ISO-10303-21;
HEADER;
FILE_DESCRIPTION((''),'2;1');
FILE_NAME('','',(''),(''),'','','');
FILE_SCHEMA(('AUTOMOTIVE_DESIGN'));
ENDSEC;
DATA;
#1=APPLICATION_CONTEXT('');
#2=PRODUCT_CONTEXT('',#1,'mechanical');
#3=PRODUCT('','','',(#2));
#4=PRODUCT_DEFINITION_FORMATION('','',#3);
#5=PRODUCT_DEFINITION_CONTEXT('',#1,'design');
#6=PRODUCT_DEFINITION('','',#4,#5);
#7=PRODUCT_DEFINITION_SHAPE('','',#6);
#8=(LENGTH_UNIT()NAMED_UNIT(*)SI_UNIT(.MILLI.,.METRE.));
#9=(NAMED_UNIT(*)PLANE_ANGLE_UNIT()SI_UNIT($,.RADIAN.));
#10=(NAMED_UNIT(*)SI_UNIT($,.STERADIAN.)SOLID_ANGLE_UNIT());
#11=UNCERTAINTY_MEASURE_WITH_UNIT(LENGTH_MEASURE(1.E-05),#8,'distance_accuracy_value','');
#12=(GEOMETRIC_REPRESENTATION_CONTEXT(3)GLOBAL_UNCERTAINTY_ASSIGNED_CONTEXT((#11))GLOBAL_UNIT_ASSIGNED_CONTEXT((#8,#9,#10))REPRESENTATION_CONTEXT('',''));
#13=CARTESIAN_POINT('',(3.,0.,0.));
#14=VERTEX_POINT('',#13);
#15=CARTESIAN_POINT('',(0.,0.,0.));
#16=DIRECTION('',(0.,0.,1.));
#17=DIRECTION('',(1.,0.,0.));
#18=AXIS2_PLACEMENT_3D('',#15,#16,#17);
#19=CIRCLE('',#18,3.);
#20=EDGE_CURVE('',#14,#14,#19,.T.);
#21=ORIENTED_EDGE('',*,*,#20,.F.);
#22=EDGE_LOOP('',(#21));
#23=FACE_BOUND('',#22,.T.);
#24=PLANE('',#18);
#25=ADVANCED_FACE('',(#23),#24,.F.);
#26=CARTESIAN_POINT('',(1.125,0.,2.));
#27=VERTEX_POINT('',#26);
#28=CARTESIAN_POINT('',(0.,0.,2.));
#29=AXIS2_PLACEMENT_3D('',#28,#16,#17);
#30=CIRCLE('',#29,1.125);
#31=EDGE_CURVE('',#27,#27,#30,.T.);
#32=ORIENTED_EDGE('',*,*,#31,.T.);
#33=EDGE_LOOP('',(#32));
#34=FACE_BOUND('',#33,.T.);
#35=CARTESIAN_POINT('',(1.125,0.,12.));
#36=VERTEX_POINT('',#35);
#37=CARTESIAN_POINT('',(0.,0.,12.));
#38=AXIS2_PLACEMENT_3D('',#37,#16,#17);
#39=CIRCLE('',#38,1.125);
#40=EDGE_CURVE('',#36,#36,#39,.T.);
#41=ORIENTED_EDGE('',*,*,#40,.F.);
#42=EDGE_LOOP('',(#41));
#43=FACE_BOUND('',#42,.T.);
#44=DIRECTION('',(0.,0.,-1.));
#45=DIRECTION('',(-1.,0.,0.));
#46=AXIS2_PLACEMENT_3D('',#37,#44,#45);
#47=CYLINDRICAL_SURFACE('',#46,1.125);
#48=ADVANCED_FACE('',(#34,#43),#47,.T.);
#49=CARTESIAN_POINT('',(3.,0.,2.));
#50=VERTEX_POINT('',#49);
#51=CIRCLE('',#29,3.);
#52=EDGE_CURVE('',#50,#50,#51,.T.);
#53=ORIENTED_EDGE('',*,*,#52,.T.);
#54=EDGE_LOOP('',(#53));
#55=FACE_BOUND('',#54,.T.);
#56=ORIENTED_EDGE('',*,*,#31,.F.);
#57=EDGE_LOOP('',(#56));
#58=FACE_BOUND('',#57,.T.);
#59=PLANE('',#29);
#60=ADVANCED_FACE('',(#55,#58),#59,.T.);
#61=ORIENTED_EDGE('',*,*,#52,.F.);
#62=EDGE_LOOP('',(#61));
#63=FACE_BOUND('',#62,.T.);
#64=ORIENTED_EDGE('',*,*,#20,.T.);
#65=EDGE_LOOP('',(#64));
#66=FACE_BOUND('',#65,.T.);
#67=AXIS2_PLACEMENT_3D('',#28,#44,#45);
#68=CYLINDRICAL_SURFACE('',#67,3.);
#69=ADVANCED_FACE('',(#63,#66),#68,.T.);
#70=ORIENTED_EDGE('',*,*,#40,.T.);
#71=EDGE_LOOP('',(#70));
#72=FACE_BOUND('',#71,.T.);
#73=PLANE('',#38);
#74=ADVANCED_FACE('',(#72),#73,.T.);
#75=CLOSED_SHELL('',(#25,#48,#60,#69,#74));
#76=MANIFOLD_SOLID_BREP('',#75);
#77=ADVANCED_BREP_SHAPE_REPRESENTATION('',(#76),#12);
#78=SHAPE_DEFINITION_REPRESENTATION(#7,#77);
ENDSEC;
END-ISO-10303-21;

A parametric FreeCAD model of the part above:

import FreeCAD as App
import Part
import Sketcher

V = App.Vector
Q = App.Units.Quantity

doc = App.newDocument("Part")
body = doc.addObject("PartDesign::Body", "Body")

sketch1 = body.newObject("Sketcher::SketchObject", "Sketch")
sketch1.AttachmentSupport = (doc.getObject("XY_Plane"), [""])
sketch1.MapMode = "FlatFace"
sketch1.addGeometry(Part.Circle(V(0, 0, 0), V(0, 0, 1), 1.1), False)
sketch1.addConstraint(Sketcher.Constraint("Coincident", 0, 3, -1, 1))
sketch1.addConstraint(Sketcher.Constraint("Diameter", 0, Q("2.25 mm")))
pad1 = body.newObject("PartDesign::Pad", "Pad")
pad1.Profile = sketch1
pad1.Length = 12

sketch2 = body.newObject("Sketcher::SketchObject", "Sketch001")
sketch2.AttachmentSupport = (doc.getObject("XY_Plane"), [""])
sketch2.MapMode = "FlatFace"
sketch2.addGeometry(Part.Circle(V(0, 0, 0), V(0, 0, 1), 3), False)
sketch2.addGeometry(Part.Circle(V(0, 0, 0), V(0, 0, 1), 1.1), False)
sketch2.addConstraint(Sketcher.Constraint("Coincident", 0, 3, -1, 1))
sketch2.addConstraint(Sketcher.Constraint("Coincident", 1, 3, -1, 1))
sketch2.addConstraint(Sketcher.Constraint("Diameter", 0, Q("6 mm")))
sketch2.addConstraint(Sketcher.Constraint("Diameter", 1, Q("2.25 mm")))
pad2 = body.newObject("PartDesign::Pad", "Pad001")
pad2.Profile = sketch2
pad2.Length = 2

doc.recompute()
